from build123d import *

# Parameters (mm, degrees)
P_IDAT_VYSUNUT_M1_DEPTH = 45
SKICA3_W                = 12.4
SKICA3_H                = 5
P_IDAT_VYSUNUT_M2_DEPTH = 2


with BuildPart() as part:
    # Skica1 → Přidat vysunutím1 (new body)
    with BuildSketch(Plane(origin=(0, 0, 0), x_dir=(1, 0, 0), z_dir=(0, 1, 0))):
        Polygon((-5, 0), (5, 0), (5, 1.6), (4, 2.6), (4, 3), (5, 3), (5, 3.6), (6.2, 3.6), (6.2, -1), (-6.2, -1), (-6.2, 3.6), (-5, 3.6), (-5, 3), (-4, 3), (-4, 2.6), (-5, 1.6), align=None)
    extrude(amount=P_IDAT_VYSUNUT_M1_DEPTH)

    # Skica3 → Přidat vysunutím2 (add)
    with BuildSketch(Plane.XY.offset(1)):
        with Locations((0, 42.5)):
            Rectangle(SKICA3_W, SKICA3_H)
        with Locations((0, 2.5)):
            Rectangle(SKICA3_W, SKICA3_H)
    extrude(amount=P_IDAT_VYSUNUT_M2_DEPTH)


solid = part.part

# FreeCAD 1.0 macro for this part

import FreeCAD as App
import Part
import Sketcher
Q = App.Units.Quantity


def add_polygon(sketch, points):
    """Adds a closed chain of lines whose ends are joined by coincident constraints."""
    first, n = sketch.GeometryCount, len(points)
    for a, b in zip(points, points[1:] + points[:1]):
        sketch.addGeometry(Part.LineSegment(App.Vector(*a, 0), App.Vector(*b, 0)), False)
    for i in range(n):
        sketch.addConstraint(Sketcher.Constraint("Coincident", first + i, 2, first + (i + 1) % n, 1))

doc = App.newDocument("Part")
body = doc.addObject("PartDesign::Body", "Body")

# Sketch on XZ plane
sketch1 = body.newObject("Sketcher::SketchObject", "Sketch")
sketch1.AttachmentSupport = (doc.getObject("XZ_Plane"), [""])
sketch1.MapMode = "FlatFace"
add_polygon(sketch1, [(5, 0), (-5, 0), (-5, -1.6), (-4, -2.6), (-4, -3), (-5, -3), (-5, -3.6), (-6.2, -3.6), (-6.2, 1), (6.2, 1), (6.2, -3.6), (5, -3.6), (5, -3), (4, -3), (4, -2.6), (5, -1.6)])  # lines 0-15
sketch1.addConstraint([
    Sketcher.Constraint("Horizontal", 0),
    Sketcher.Constraint("Vertical", 1),
    Sketcher.Constraint("Vertical", 3),
    Sketcher.Constraint("Horizontal", 4),
    Sketcher.Constraint("Vertical", 5),
    Sketcher.Constraint("Horizontal", 6),
    Sketcher.Constraint("Vertical", 7),
    Sketcher.Constraint("Horizontal", 8),
    Sketcher.Constraint("Vertical", 9),
    Sketcher.Constraint("Horizontal", 10),
    Sketcher.Constraint("Vertical", 11),
    Sketcher.Constraint("Horizontal", 12),
    Sketcher.Constraint("Vertical", 13),
    Sketcher.Constraint("Vertical", 15),
    Sketcher.Constraint("Symmetric", 0, 2, 15, 2, -1, 1),
    Sketcher.Constraint("Symmetric", 6, 2, 9, 2, -2),
    Sketcher.Constraint("Symmetric", 4, 2, 11, 2, -2),
    Sketcher.Constraint("Symmetric", 2, 2, 13, 2, -2),
    Sketcher.Constraint("Perpendicular", 2, 14),
    Sketcher.Constraint("Horizontal", 1, 2, 14, 2),
    Sketcher.Constraint("Vertical", 1, 2, 4, 2),
    Sketcher.Constraint("DistanceX", 0, 2, 0, 1, Q("10 mm")),
    Sketcher.Constraint("DistanceX", 4, 2, 4, 1, Q("1 mm")),
    Sketcher.Constraint("DistanceX", 6, 2, 6, 1, Q("1.2 mm")),
    Sketcher.Constraint("DistanceY", 1, 2, 1, 1, Q("1.6 mm")),
    Sketcher.Constraint("DistanceY", 3, 2, 3, 1, Q("0.4 mm")),
    Sketcher.Constraint("DistanceY", 5, 2, 5, 1, Q("0.6 mm")),
    Sketcher.Constraint("DistanceY", 7, 1, 7, 2, Q("4.6 mm")),
])
pad1 = body.newObject("PartDesign::Pad", "Pad")
pad1.Profile = sketch1
pad1.Length = 45
pad1.Reversed = True

# Sketch on XY plane
sketch2 = body.newObject("Sketcher::SketchObject", "Sketch001")
sketch2.AttachmentSupport = (doc.getObject("XY_Plane"), [""])
sketch2.MapMode = "FlatFace"
sketch2.AttachmentOffset = App.Placement(App.Vector(0, 0, 1), App.Rotation())
add_polygon(sketch2, [(-6, 45), (-6, 40), (6, 40), (6, 45)])  # lines 0-3
add_polygon(sketch2, [(-6, 5), (-6, 0), (6, 0), (6, 5)])  # lines 4-7
sketch2.addConstraint([
    Sketcher.Constraint("Vertical", 0),
    Sketcher.Constraint("Horizontal", 1),
    Sketcher.Constraint("Vertical", 2),
    Sketcher.Constraint("Horizontal", 3),
    Sketcher.Constraint("Vertical", 4),
    Sketcher.Constraint("Horizontal", 5),
    Sketcher.Constraint("Vertical", 6),
    Sketcher.Constraint("Horizontal", 7),
    Sketcher.Constraint("Symmetric", 4, 2, 5, 2, -1, 1),
    Sketcher.Constraint("Vertical", 3, 2, 4, 2),
    Sketcher.Constraint("Vertical", 2, 2, 5, 2),
    Sketcher.Constraint("Equal", 2, 4),
    Sketcher.Constraint("DistanceY", 0, 2, 0, 1, Q("5 mm")),
    Sketcher.Constraint("DistanceX", 1, 1, 1, 2, Q("12.4 mm")),
    Sketcher.Constraint("DistanceY", -1, 1, 0, 2, Q("40 mm")),
])
pad2 = body.newObject("PartDesign::Pad", "Pad001")
pad2.Profile = sketch2
pad2.Length = 2

doc.recompute()
